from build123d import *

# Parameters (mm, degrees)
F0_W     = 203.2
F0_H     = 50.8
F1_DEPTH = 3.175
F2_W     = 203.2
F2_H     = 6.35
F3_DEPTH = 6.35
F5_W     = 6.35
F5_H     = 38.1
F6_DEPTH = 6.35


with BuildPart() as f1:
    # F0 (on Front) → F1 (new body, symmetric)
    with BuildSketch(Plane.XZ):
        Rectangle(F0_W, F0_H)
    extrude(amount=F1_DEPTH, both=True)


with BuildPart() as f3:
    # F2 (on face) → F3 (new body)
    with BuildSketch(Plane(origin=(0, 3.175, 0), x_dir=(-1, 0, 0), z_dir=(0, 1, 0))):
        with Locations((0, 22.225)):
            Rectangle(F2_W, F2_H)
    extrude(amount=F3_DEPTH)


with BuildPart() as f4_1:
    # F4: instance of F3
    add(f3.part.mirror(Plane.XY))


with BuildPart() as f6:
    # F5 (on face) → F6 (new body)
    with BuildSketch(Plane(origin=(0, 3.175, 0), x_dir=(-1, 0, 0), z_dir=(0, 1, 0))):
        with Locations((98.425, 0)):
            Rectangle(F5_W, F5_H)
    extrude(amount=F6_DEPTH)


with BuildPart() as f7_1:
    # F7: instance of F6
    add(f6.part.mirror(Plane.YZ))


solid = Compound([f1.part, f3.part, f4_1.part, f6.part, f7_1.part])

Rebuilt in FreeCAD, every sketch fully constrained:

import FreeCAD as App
import Part
import Sketcher
Q = App.Units.Quantity

doc = App.newDocument("Part")
body = doc.addObject("PartDesign::Body", "Body")

sketch1 = body.newObject("Sketcher::SketchObject", "Sketch")
sketch1.AttachmentSupport = (doc.getObject("XZ_Plane"), [""])
sketch1.MapMode = "FlatFace"
sketch1.addGeometry([
    Part.LineSegment(App.Vector(-102, 25, 0), App.Vector(-102, -25, 0)),
    Part.LineSegment(App.Vector(-102, -25, 0), App.Vector(102, -25, 0)),
    Part.LineSegment(App.Vector(102, -25, 0), App.Vector(102, 25, 0)),
    Part.LineSegment(App.Vector(102, 25, 0), App.Vector(-102, 25, 0)),
], False)
sketch1.addConstraint([
    Sketcher.Constraint("Coincident", 0, 2, 1, 1),
    Sketcher.Constraint("Coincident", 1, 2, 2, 1),
    Sketcher.Constraint("Coincident", 2, 2, 3, 1),
    Sketcher.Constraint("Coincident", 3, 2, 0, 1),
    Sketcher.Constraint("Vertical", 0),
    Sketcher.Constraint("Horizontal", 1),
    Sketcher.Constraint("Vertical", 2),
    Sketcher.Constraint("Horizontal", 3),
    Sketcher.Constraint("Symmetric", 0, 2, 2, 2, -1, 1),
    Sketcher.Constraint("DistanceX", 1, 1, 1, 2, Q("8 in")),
    Sketcher.Constraint("DistanceY", 0, 2, 0, 1, Q("2 in")),
])
pad1 = body.newObject("PartDesign::Pad", "Pad")
pad1.Profile = sketch1
pad1.Length = Q("0.25 in")
pad1.Midplane = True
body2 = doc.addObject("PartDesign::Body", "Body001")

sketch2 = body2.newObject("Sketcher::SketchObject", "Sketch001")
sketch2.AttachmentSupport = (doc.getObject("XZ_Plane001"), [""])
sketch2.MapMode = "FlatFace"
sketch2.AttachmentOffset = App.Placement(App.Vector(0, 0, -0.125 * 25.4), App.Rotation())
sketch2.addGeometry([
    Part.LineSegment(App.Vector(102, 25, 0), App.Vector(102, 19, 0)),
    Part.LineSegment(App.Vector(102, 19, 0), App.Vector(-102, 19, 0)),
    Part.LineSegment(App.Vector(-102, 19, 0), App.Vector(-102, 25, 0)),
    Part.LineSegment(App.Vector(-102, 25, 0), App.Vector(102, 25, 0)),
], False)
sketch2.addConstraint([
    Sketcher.Constraint("Coincident", 0, 2, 1, 1),
    Sketcher.Constraint("Coincident", 1, 2, 2, 1),
    Sketcher.Constraint("Coincident", 2, 2, 3, 1),
    Sketcher.Constraint("Coincident", 3, 2, 0, 1),
    Sketcher.Constraint("Vertical", 0),
    Sketcher.Constraint("Horizontal", 1),
    Sketcher.Constraint("Vertical", 2),
    Sketcher.Constraint("Horizontal", 3),
    Sketcher.Constraint("DistanceX", 1, 2, 1, 1, Q("8 in")),
    Sketcher.Constraint("DistanceX", -1, 1, 0, 2, Q("4 in")),
    Sketcher.Constraint("DistanceY", -1, 1, 2, 2, Q("1 in")),
    Sketcher.Constraint("DistanceY", 0, 2, 0, 1, Q("0.25 in")),
])
pad2 = body2.newObject("PartDesign::Pad", "Pad001")
pad2.Profile = sketch2
pad2.Length = Q("0.25 in")
pad2.Reversed = True
body3 = doc.addObject("PartDesign::Body", "Body002")
doc.recompute()

mirroring = doc.addObject("Part::Mirroring", "Mirroring")
mirroring.Source = body2
mirroring.Base = App.Vector(0, 0, 0)
mirroring.Normal = App.Vector(0, 0, 1)
body3.BaseFeature = mirroring
doc.recompute()
body4 = doc.addObject("PartDesign::Body", "Body003")

sketch3 = body4.newObject("Sketcher::SketchObject", "Sketch002")
sketch3.AttachmentSupport = (doc.getObject("XZ_Plane003"), [""])
sketch3.MapMode = "FlatFace"
sketch3.AttachmentOffset = App.Placement(App.Vector(0, 0, -0.125 * 25.4), App.Rotation())
sketch3.addGeometry([
    Part.LineSegment(App.Vector(-95, 19, 0), App.Vector(-95, -19, 0)),
    Part.LineSegment(App.Vector(-95, -19, 0), App.Vector(-102, -19, 0)),
    Part.LineSegment(App.Vector(-102, -19, 0), App.Vector(-102, 19, 0)),
    Part.LineSegment(App.Vector(-102, 19, 0), App.Vector(-95, 19, 0)),
], False)
sketch3.addConstraint([
    Sketcher.Constraint("Coincident", 0, 2, 1, 1),
    Sketcher.Constraint("Coincident", 1, 2, 2, 1),
    Sketcher.Constraint("Coincident", 2, 2, 3, 1),
    Sketcher.Constraint("Coincident", 3, 2, 0, 1),
    Sketcher.Constraint("Vertical", 0),
    Sketcher.Constraint("Horizontal", 1),
    Sketcher.Constraint("Vertical", 2),
    Sketcher.Constraint("Horizontal", 3),
    Sketcher.Constraint("DistanceY", 0, 2, 0, 1, Q("1.5 in")),
    Sketcher.Constraint("DistanceX", 1, 2, -1, 1, Q("4 in")),
    Sketcher.Constraint("DistanceX", 1, 2, 1, 1, Q("0.25 in")),
    Sketcher.Constraint("DistanceY", 0, 2, -1, 1, Q("0.75 in")),
])
pad3 = body4.newObject("PartDesign::Pad", "Pad002")
pad3.Profile = sketch3
pad3.Length = Q("0.25 in")
pad3.Reversed = True
body5 = doc.addObject("PartDesign::Body", "Body004")
doc.recompute()

mirroring2 = doc.addObject("Part::Mirroring", "Mirroring001")
mirroring2.Source = body4
mirroring2.Base = App.Vector(0, 0, 0)
mirroring2.Normal = App.Vector(1, 0, 0)
body5.BaseFeature = mirroring2
doc.recompute()
mirroring.Visibility = False
mirroring2.Visibility = False

doc.recompute()
